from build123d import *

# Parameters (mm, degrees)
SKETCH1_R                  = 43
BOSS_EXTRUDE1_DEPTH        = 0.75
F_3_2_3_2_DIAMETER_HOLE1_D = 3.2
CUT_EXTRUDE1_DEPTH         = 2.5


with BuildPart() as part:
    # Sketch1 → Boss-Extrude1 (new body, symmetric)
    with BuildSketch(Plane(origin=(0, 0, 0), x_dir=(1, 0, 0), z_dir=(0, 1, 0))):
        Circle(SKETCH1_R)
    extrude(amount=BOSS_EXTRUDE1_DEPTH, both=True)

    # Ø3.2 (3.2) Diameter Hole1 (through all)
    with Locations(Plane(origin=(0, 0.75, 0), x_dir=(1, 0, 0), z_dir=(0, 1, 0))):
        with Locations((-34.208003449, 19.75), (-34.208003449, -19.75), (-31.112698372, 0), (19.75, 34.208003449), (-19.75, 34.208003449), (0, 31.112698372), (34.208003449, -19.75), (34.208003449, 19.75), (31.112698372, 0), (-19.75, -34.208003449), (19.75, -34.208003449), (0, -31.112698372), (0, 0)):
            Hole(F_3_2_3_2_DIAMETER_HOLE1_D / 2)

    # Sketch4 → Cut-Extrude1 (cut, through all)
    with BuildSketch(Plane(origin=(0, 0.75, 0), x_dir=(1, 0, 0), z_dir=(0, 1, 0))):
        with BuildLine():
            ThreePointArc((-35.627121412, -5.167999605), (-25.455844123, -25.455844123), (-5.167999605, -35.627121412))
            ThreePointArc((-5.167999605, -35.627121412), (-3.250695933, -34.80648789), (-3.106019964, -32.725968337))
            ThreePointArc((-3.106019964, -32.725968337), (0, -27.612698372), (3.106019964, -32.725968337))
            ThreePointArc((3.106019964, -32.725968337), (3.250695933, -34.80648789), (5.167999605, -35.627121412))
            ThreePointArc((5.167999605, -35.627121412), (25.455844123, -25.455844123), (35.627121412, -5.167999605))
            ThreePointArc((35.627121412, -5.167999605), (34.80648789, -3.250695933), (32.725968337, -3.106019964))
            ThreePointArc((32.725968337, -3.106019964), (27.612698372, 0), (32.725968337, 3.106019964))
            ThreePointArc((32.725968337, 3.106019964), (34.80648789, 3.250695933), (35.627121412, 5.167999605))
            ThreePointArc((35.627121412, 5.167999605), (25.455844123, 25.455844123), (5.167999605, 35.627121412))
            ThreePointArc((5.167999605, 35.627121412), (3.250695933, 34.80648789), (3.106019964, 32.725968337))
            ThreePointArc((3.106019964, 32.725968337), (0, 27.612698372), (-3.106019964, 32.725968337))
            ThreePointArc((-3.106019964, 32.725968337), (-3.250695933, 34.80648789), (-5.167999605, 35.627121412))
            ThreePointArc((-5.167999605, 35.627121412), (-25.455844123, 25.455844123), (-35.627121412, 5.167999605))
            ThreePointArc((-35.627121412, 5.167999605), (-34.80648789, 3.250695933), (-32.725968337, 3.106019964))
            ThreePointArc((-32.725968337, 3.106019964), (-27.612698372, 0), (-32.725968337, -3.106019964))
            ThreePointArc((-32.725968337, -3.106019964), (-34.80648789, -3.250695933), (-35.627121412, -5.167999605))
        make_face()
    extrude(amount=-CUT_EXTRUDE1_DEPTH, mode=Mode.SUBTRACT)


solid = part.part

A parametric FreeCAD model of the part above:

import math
import FreeCAD as App
import Part
import Sketcher

V = App.Vector

doc = App.newDocument("Part")
params = doc.addObject("Spreadsheet::Sheet", "Params")
for row, (alias, value) in enumerate([
    ("sketch1_diameter", "86 mm"),
    ("pad1_length", "1.5 mm"),
    ("sketch2_diameter", "3.2 mm"),
    ("hole_diameter", "3.2 mm"),
    ("sketch3_radius", "36 mm"),
    ("sketch3_radius2", "2 mm"),
    ("sketch3_radius3", "3.5 mm"),
], start=1):
    params.set(f"A{row}", alias)
    params.set(f"B{row}", "=" + value)
    params.setAlias(f"B{row}", alias)

body = doc.addObject("PartDesign::Body", "Body")

# Sketch on XZ plane
sketch1 = body.newObject("Sketcher::SketchObject", "Sketch")
sketch1.AttachmentSupport = (doc.getObject("XZ_Plane"), [""])
sketch1.MapMode = "FlatFace"
sketch1.addGeometry(Part.Circle(V(0, 0, 0), V(0, 0, 1), 43), False)
sketch1.addConstraint([
    Sketcher.Constraint("Coincident", 0, 3, -1, 1),
    Sketcher.Constraint("Diameter", 0, 86.0),
])
sketch1.setExpression("Constraints[1]", "Params.sketch1_diameter")
pad1 = body.newObject("PartDesign::Pad", "Pad")
pad1.Profile = sketch1
pad1.setExpression("Length", "Params.pad1_length")
pad1.Midplane = True

# Sketch on XZ plane
sketch2 = body.newObject("Sketcher::SketchObject", "Sketch001")
sketch2.AttachmentSupport = (doc.getObject("XZ_Plane"), [""])
sketch2.MapMode = "FlatFace"
sketch2.AttachmentOffset = App.Placement(V(0, 0, -0.75), App.Rotation())
sketch2.addGeometry([
    Part.Circle(V(-34.2, -19.8, 0), V(0, 0, 1), 1.6),  # 0
    Part.Circle(V(-34.2, 19.8, 0), V(0, 0, 1), 1.6),  # 1
    Part.Circle(V(-31.1, 0, 0), V(0, 0, 1), 1.6),  # 2
    Part.Circle(V(19.8, -34.2, 0), V(0, 0, 1), 1.6),  # 3
    Part.Circle(V(-19.8, -34.2, 0), V(0, 0, 1), 1.6),  # 4
    Part.Circle(V(0, -31.1, 0), V(0, 0, 1), 1.6),  # 5
    Part.Circle(V(34.2, 19.8, 0), V(0, 0, 1), 1.6),  # 6
    Part.Circle(V(34.2, -19.8, 0), V(0, 0, 1), 1.6),  # 7
    Part.Circle(V(31.1, 0, 0), V(0, 0, 1), 1.6),  # 8
    Part.Circle(V(-19.8, 34.2, 0), V(0, 0, 1), 1.6),  # 9
    Part.Circle(V(19.8, 34.2, 0), V(0, 0, 1), 1.6),  # 10
    Part.Circle(V(0, 31.1, 0), V(0, 0, 1), 1.6),  # 11
    Part.Circle(V(0, 0, 0), V(0, 0, 1), 1.6),  # 12
], False)
sketch2.addConstraint([
    Sketcher.Constraint("Coincident", 12, 3, -1, 1),
    Sketcher.Constraint("Equal", 0, 1),
    Sketcher.Constraint("Equal", 1, 2),
    Sketcher.Constraint("Equal", 2, 3),
    Sketcher.Constraint("Equal", 3, 4),
    Sketcher.Constraint("Equal", 4, 5),
    Sketcher.Constraint("Equal", 5, 6),
    Sketcher.Constraint("Equal", 6, 7),
    Sketcher.Constraint("Equal", 7, 8),
    Sketcher.Constraint("Equal", 8, 9),
    Sketcher.Constraint("Equal", 9, 10),
    Sketcher.Constraint("Equal", 10, 11),
    Sketcher.Constraint("Equal", 11, 12),
    Sketcher.Constraint("Symmetric", 0, 3, 6, 3, -1, 1),
    Sketcher.Constraint("Symmetric", 1, 3, 7, 3, -1, 1),
    Sketcher.Constraint("Symmetric", 2, 3, 8, 3, -1, 1),
    Sketcher.Constraint("Symmetric", 3, 3, 9, 3, -1, 1),
    Sketcher.Constraint("Symmetric", 4, 3, 10, 3, -1, 1),
    Sketcher.Constraint("Symmetric", 5, 3, 11, 3, -1, 1),
    Sketcher.Constraint("Symmetric", 3, 3, 4, 3, -2),
    Sketcher.Constraint("Symmetric", 1, 3, 6, 3, -2),
    Sketcher.Constraint("PointOnObject", 2, 3, -1),
    Sketcher.Constraint("PointOnObject", 5, 3, -2),
    Sketcher.Constraint("Diameter", 0, 3.2),
    Sketcher.Constraint("DistanceY", 0, 3, 1, 3, 39.5),
    Sketcher.Constraint("DistanceX", 4, 3, 3, 3, 39.5),
    Sketcher.Constraint("DistanceX", 2, 3, -1, 1, 31.112698),
    Sketcher.Constraint("DistanceY", 5, 3, -1, 1, 31.112698),
    Sketcher.Constraint("DistanceX", 2, 3, 6, 3, 65.320702),
    Sketcher.Constraint("DistanceY", 3, 3, -1, 1, 34.208003),
])
sketch2.setExpression("Constraints[23]", "Params.sketch2_diameter")
doc.recompute()
hole = body.newObject("PartDesign::Hole", "Hole")
hole.Profile = sketch2
hole.ThreadType = "None"
hole.setExpression("Diameter", "Params.hole_diameter")
hole.DepthType = "ThroughAll"
hole.Reversed = True

# Sketch on XZ plane
sketch3 = body.newObject("Sketcher::SketchObject", "Sketch002")
sketch3.AttachmentSupport = (doc.getObject("XZ_Plane"), [""])
sketch3.MapMode = "FlatFace"
sketch3.AttachmentOffset = App.Placement(V(0, 0, -0.75), App.Rotation())
sketch3.addGeometry([
    Part.ArcOfCircle(Part.Circle(V(0, 0, 0), V(0, 0, 1), 36), math.radians(98), math.radians(172)),  # 0
    Part.ArcOfCircle(Part.Circle(V(-4.9, 33.6, 0), V(0, 0, 1), 2), math.radians(-27), math.radians(98)),  # 1
    Part.ArcOfCircle(Part.Circle(V(0, 31.1, 0), V(0, 0, 1), 3.5), math.radians(153), math.radians(387)),  # 2
    Part.ArcOfCircle(Part.Circle(V(4.9, 33.6, 0), V(0, 0, 1), 2), math.radians(82), math.radians(207)),  # 3
    Part.ArcOfCircle(Part.Circle(V(0, 0, 0), V(0, 0, 1), 36), math.radians(8), math.radians(82)),  # 4
    Part.ArcOfCircle(Part.Circle(V(33.6, 4.9, 0), V(0, 0, 1), 2), math.radians(-117), math.radians(8)),  # 5
    Part.ArcOfCircle(Part.Circle(V(31.1, 0, 0), V(0, 0, 1), 3.5), math.radians(63), math.radians(297)),  # 6
    Part.ArcOfCircle(Part.Circle(V(33.6, -4.9, 0), V(0, 0, 1), 2), math.radians(-8), math.radians(117)),  # 7
    Part.ArcOfCircle(Part.Circle(V(0, 0, 0), V(0, 0, 1), 36), math.radians(-82), math.radians(-8)),  # 8
    Part.ArcOfCircle(Part.Circle(V(4.9, -33.6, 0), V(0, 0, 1), 2), math.radians(153), math.radians(278)),  # 9
    Part.ArcOfCircle(Part.Circle(V(0, -31.1, 0), V(0, 0, 1), 3.5), math.radians(-27), math.radians(207)),  # 10
    Part.ArcOfCircle(Part.Circle(V(-4.9, -33.6, 0), V(0, 0, 1), 2), math.radians(-98), math.radians(27)),  # 11
    Part.ArcOfCircle(Part.Circle(V(0, 0, 0), V(0, 0, 1), 36), math.radians(-172), math.radians(-98)),  # 12
    Part.ArcOfCircle(Part.Circle(V(-33.6, -4.9, 0), V(0, 0, 1), 2), math.radians(63), math.radians(188)),  # 13
    Part.ArcOfCircle(Part.Circle(V(-31.1, 0, 0), V(0, 0, 1), 3.5), math.radians(-117), math.radians(117)),  # 14
    Part.ArcOfCircle(Part.Circle(V(-33.6, 4.9, 0), V(0, 0, 1), 2), math.radians(172), math.radians(297)),  # 15
], False)
sketch3.addConstraint([
    Sketcher.Constraint("Tangent", 0, 1, 1, 2),
    Sketcher.Constraint("Tangent", 1, 1, 2, 1),
    Sketcher.Constraint("Tangent", 2, 2, 3, 2),
    Sketcher.Constraint("Tangent", 3, 1, 4, 2),
    Sketcher.Constraint("Tangent", 4, 1, 5, 2),
    Sketcher.Constraint("Tangent", 5, 1, 6, 1),
    Sketcher.Constraint("Tangent", 6, 2, 7, 2),
    Sketcher.Constraint("Tangent", 7, 1, 8, 2),
    Sketcher.Constraint("Tangent", 8, 1, 9, 2),
    Sketcher.Constraint("Tangent", 9, 1, 10, 1),
    Sketcher.Constraint("Tangent", 10, 2, 11, 2),
    Sketcher.Constraint("Tangent", 11, 1, 12, 2),
    Sketcher.Constraint("Tangent", 12, 1, 13, 2),
    Sketcher.Constraint("Tangent", 13, 1, 14, 1),
    Sketcher.Constraint("Tangent", 14, 2, 15, 2),
    Sketcher.Constraint("Tangent", 15, 1, 0, 2),
    Sketcher.Constraint("Coincident", 0, 3, -1, 1),
    Sketcher.Constraint("Coincident", 4, 3, -1, 1),
    Sketcher.Constraint("Coincident", 8, 3, -1, 1),
    Sketcher.Constraint("Coincident", 12, 3, -1, 1),
    Sketcher.Constraint("Equal", 1, 3),
    Sketcher.Constraint("Equal", 0, 4),
    Sketcher.Constraint("Equal", 3, 5),
    Sketcher.Constraint("Equal", 2, 6),
    Sketcher.Constraint("Equal", 5, 7),
    Sketcher.Constraint("Equal", 4, 8),
    Sketcher.Constraint("Equal", 7, 9),
    Sketcher.Constraint("Equal", 6, 10),
    Sketcher.Constraint("Equal", 9, 11),
    Sketcher.Constraint("Equal", 8, 12),
    Sketcher.Constraint("Equal", 11, 13),
    Sketcher.Constraint("Equal", 10, 14),
    Sketcher.Constraint("Equal", 13, 15),
    Sketcher.Constraint("Symmetric", 2, 3, 10, 3, -1, 1),
    Sketcher.Constraint("Symmetric", 6, 3, 14, 3, -1, 1),
    Sketcher.Constraint("PointOnObject", 2, 3, -2),
    Sketcher.Constraint("PointOnObject", 6, 3, -1),
    Sketcher.Constraint("Radius", 0, 36.0),
    Sketcher.Constraint("Radius", 1, 2.0),
    Sketcher.Constraint("Radius", 2, 3.5),
    Sketcher.Constraint("DistanceX", 0, 1, -1, 1, 5.168),
    Sketcher.Constraint("DistanceY", -1, 1, 4, 1, 5.168),
])
sketch3.setExpression("Constraints[37]", "Params.sketch3_radius")
sketch3.setExpression("Constraints[38]", "Params.sketch3_radius2")
sketch3.setExpression("Constraints[39]", "Params.sketch3_radius3")
pocket1 = body.newObject("PartDesign::Pocket", "Pocket")
pocket1.Profile = sketch3
pocket1.Type = "ThroughAll"
pocket1.Reversed = True

doc.recompute()
